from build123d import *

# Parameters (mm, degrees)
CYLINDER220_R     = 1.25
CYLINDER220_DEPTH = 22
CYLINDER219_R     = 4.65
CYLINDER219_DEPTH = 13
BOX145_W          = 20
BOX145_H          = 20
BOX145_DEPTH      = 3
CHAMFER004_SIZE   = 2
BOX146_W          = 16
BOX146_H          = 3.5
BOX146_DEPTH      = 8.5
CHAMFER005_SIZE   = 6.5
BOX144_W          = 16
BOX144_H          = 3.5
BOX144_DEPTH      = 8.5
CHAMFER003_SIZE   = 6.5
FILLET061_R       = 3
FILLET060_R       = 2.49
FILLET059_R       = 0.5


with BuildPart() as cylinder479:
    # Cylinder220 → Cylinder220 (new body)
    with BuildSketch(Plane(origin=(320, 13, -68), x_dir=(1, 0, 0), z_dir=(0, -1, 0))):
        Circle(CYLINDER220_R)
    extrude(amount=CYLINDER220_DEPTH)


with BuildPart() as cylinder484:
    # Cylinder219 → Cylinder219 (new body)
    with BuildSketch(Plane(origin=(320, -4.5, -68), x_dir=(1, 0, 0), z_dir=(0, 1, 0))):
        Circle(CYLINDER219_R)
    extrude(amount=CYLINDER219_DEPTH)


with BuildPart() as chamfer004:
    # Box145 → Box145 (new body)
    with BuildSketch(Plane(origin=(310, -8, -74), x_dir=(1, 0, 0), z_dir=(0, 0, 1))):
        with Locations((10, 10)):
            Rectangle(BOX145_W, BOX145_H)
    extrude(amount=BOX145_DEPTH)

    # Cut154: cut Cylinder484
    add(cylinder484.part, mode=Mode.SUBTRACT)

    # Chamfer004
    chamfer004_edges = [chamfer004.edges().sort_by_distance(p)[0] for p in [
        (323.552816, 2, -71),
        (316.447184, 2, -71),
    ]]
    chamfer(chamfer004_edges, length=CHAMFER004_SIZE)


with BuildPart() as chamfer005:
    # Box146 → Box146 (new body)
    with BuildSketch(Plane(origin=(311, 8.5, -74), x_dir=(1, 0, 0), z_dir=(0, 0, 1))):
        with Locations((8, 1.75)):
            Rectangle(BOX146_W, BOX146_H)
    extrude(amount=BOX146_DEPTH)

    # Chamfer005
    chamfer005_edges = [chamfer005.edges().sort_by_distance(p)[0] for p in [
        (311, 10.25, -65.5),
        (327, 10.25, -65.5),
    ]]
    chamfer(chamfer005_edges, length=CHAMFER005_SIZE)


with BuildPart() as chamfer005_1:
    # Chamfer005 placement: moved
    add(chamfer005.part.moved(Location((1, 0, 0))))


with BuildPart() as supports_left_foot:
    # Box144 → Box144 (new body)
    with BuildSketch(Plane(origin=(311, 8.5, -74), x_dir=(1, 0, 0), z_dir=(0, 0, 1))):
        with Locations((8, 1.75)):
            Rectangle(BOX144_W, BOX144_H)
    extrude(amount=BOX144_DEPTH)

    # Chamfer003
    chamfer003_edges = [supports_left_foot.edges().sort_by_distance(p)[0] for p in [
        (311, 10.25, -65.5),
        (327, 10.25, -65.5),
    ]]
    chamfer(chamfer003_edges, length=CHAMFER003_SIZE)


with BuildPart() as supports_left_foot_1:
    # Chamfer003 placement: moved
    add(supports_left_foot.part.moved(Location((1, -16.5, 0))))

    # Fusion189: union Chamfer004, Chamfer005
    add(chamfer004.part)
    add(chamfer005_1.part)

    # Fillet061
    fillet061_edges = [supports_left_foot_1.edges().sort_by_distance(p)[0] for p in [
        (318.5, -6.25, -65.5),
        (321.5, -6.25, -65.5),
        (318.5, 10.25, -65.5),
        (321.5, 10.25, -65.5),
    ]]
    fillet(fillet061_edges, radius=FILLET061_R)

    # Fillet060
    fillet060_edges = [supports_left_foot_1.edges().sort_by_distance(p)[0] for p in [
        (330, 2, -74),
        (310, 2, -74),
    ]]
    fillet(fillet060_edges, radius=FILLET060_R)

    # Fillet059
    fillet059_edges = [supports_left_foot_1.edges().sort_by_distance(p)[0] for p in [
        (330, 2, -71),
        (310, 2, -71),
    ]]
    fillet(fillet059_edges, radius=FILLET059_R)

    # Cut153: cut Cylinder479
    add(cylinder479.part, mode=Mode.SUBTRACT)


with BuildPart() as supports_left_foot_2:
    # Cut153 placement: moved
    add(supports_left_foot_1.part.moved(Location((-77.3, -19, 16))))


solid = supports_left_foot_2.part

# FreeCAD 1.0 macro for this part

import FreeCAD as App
import Part
import Sketcher

V = App.Vector
Q = App.Units.Quantity


def edges_at(feature, points):
    """Names of the edges that pass closest to the given points."""
    edges = feature.Shape.Edges
    near = lambda p: min(range(len(edges)), key=lambda i: edges[i].distToShape(Part.Vertex(*p))[0])
    return sorted({f"Edge{near(p) + 1}" for p in points})

doc = App.newDocument("Part")
body = doc.addObject("PartDesign::Body", "Body")

# Sketch on XZ plane
sketch1 = body.newObject("Sketcher::SketchObject", "Sketch")
sketch1.AttachmentSupport = (doc.getObject("XZ_Plane"), [""])
sketch1.MapMode = "FlatFace"
sketch1.AttachmentOffset = App.Placement(V(0, 0, -13), App.Rotation())
sketch1.addGeometry(Part.Circle(V(320, -68, 0), V(0, 0, 1), 1.25), False)
sketch1.addConstraint([
    Sketcher.Constraint("Diameter", 0, Q("2.5 mm")),
    Sketcher.Constraint("DistanceX", -1, 1, 0, 3, Q("320 mm")),
    Sketcher.Constraint("DistanceY", 0, 3, -1, 1, Q("68 mm")),
])
pad1 = body.newObject("PartDesign::Pad", "Pad")
pad1.Profile = sketch1
pad1.Length = 22
body2 = doc.addObject("PartDesign::Body", "Body001")

# Sketch on XZ plane
sketch2 = body2.newObject("Sketcher::SketchObject", "Sketch001")
sketch2.AttachmentSupport = (doc.getObject("XZ_Plane001"), [""])
sketch2.MapMode = "FlatFace"
sketch2.AttachmentOffset = App.Placement(V(0, 0, 4.5), App.Rotation())
sketch2.addGeometry(Part.Circle(V(320, -68, 0), V(0, 0, 1), 4.65), False)
sketch2.addConstraint([
    Sketcher.Constraint("Diameter", 0, Q("9.3 mm")),
    Sketcher.Constraint("DistanceX", -1, 1, 0, 3, Q("320 mm")),
    Sketcher.Constraint("DistanceY", 0, 3, -1, 1, Q("68 mm")),
])
pad2 = body2.newObject("PartDesign::Pad", "Pad001")
pad2.Profile = sketch2
pad2.Length = 13
pad2.Reversed = True
body3 = doc.addObject("PartDesign::Body", "Body002")

# Sketch on XY plane
sketch3 = body3.newObject("Sketcher::SketchObject", "Sketch002")
sketch3.AttachmentSupport = (doc.getObject("XY_Plane002"), [""])
sketch3.MapMode = "FlatFace"
sketch3.AttachmentOffset = App.Placement(V(0, 0, -74), App.Rotation())
sketch3.addGeometry([
    Part.LineSegment(V(310, 12, 0), V(310, -8, 0)),
    Part.LineSegment(V(310, -8, 0), V(330, -8, 0)),
    Part.LineSegment(V(330, -8, 0), V(330, 12, 0)),
    Part.LineSegment(V(330, 12, 0), V(310, 12, 0)),
], False)
sketch3.addConstraint([
    Sketcher.Constraint("Coincident", 0, 2, 1, 1),
    Sketcher.Constraint("Coincident", 1, 2, 2, 1),
    Sketcher.Constraint("Coincident", 2, 2, 3, 1),
    Sketcher.Constraint("Coincident", 3, 2, 0, 1),
    Sketcher.Constraint("Vertical", 0),
    Sketcher.Constraint("Horizontal", 1),
    Sketcher.Constraint("Vertical", 2),
    Sketcher.Constraint("Horizontal", 3),
    Sketcher.Constraint("Equal", 3, 0),
    Sketcher.Constraint("DistanceX", 1, 1, 1, 2, Q("20 mm")),
    Sketcher.Constraint("DistanceX", -1, 1, 0, 2, Q("310 mm")),
    Sketcher.Constraint("DistanceY", 0, 2, -1, 1, Q("8 mm")),
])
pad3 = body3.newObject("PartDesign::Pad", "Pad002")
pad3.Profile = sketch3
pad3.Length = 3
doc.recompute()

boolean = body3.newObject("PartDesign::Boolean", "Boolean")
boolean.Type = "Cut"
boolean.addObjects([body2])
doc.recompute()

chamfer = body3.newObject("PartDesign::Chamfer", "Chamfer")
chamfer.Base = (boolean, edges_at(boolean, [(323.553, 2, -71), (316.447, 2, -71)]))
chamfer.Size = 2
body4 = doc.addObject("PartDesign::Body", "Body003")

# Sketch on XY plane
sketch4 = body4.newObject("Sketcher::SketchObject", "Sketch003")
sketch4.AttachmentSupport = (doc.getObject("XY_Plane003"), [""])
sketch4.MapMode = "FlatFace"
sketch4.AttachmentOffset = App.Placement(V(0, 0, -74), App.Rotation())
sketch4.addGeometry([
    Part.LineSegment(V(311, 12, 0), V(311, 8.5, 0)),
    Part.LineSegment(V(311, 8.5, 0), V(327, 8.5, 0)),
    Part.LineSegment(V(327, 8.5, 0), V(327, 12, 0)),
    Part.LineSegment(V(327, 12, 0), V(311, 12, 0)),
], False)
sketch4.addConstraint([
    Sketcher.Constraint("Coincident", 0, 2, 1, 1),
    Sketcher.Constraint("Coincident", 1, 2, 2, 1),
    Sketcher.Constraint("Coincident", 2, 2, 3, 1),
    Sketcher.Constraint("Coincident", 3, 2, 0, 1),
    Sketcher.Constraint("Vertical", 0),
    Sketcher.Constraint("Horizontal", 1),
    Sketcher.Constraint("Vertical", 2),
    Sketcher.Constraint("Horizontal", 3),
    Sketcher.Constraint("DistanceX", 1, 1, 1, 2, Q("16 mm")),
    Sketcher.Constraint("DistanceY", 0, 2, 0, 1, Q("3.5 mm")),
    Sketcher.Constraint("DistanceX", -1, 1, 0, 2, Q("311 mm")),
    Sketcher.Constraint("DistanceY", -1, 1, 2, 2, Q("12 mm")),
])
pad4 = body4.newObject("PartDesign::Pad", "Pad003")
pad4.Profile = sketch4
pad4.Length = 8.5
doc.recompute()

chamfer2 = body4.newObject("PartDesign::Chamfer", "Chamfer001")
chamfer2.Base = (pad4, edges_at(pad4, [(311, 10.25, -65.5), (327, 10.25, -65.5)]))
chamfer2.Size = 6.5
body5 = doc.addObject("PartDesign::Body", "Body004")
doc.recompute()

body4.Placement = App.Placement(V(1, 0, 0), App.Rotation(V(0, 0, 1), 0))
boolean2 = body5.newObject("PartDesign::Boolean", "Boolean001")
boolean2.Type = "Fuse"
boolean2.addObjects([body4])
body6 = doc.addObject("PartDesign::Body", "Body005")

# Sketch on XY plane
sketch5 = body6.newObject("Sketcher::SketchObject", "Sketch004")
sketch5.AttachmentSupport = (doc.getObject("XY_Plane005"), [""])
sketch5.MapMode = "FlatFace"
sketch5.AttachmentOffset = App.Placement(V(0, 0, -74), App.Rotation())
sketch5.addGeometry([
    Part.LineSegment(V(311, 12, 0), V(311, 8.5, 0)),
    Part.LineSegment(V(311, 8.5, 0), V(327, 8.5, 0)),
    Part.LineSegment(V(327, 8.5, 0), V(327, 12, 0)),
    Part.LineSegment(V(327, 12, 0), V(311, 12, 0)),
], False)
sketch5.addConstraint([
    Sketcher.Constraint("Coincident", 0, 2, 1, 1),
    Sketcher.Constraint("Coincident", 1, 2, 2, 1),
    Sketcher.Constraint("Coincident", 2, 2, 3, 1),
    Sketcher.Constraint("Coincident", 3, 2, 0, 1),
    Sketcher.Constraint("Vertical", 0),
    Sketcher.Constraint("Horizontal", 1),
    Sketcher.Constraint("Vertical", 2),
    Sketcher.Constraint("Horizontal", 3),
    Sketcher.Constraint("DistanceX", 1, 1, 1, 2, Q("16 mm")),
    Sketcher.Constraint("DistanceY", 0, 2, 0, 1, Q("3.5 mm")),
    Sketcher.Constraint("DistanceX", -1, 1, 0, 2, Q("311 mm")),
    Sketcher.Constraint("DistanceY", -1, 1, 2, 2, Q("12 mm")),
])
pad5 = body6.newObject("PartDesign::Pad", "Pad004")
pad5.Profile = sketch5
pad5.Length = 8.5
doc.recompute()

chamfer3 = body6.newObject("PartDesign::Chamfer", "Chamfer002")
chamfer3.Base = (pad5, edges_at(pad5, [(311, 10.25, -65.5), (327, 10.25, -65.5)]))
chamfer3.Size = 6.5
body7 = doc.addObject("PartDesign::Body", "Body006")
doc.recompute()

body6.Placement = App.Placement(V(1, -16.5, 0), App.Rotation(V(0, 0, 1), 0))
boolean3 = body7.newObject("PartDesign::Boolean", "Boolean002")
boolean3.Type = "Fuse"
boolean3.addObjects([body6])
doc.recompute()

boolean4 = body7.newObject("PartDesign::Boolean", "Boolean003")
boolean4.Type = "Fuse"
boolean4.addObjects([body3])
doc.recompute()

boolean5 = body7.newObject("PartDesign::Boolean", "Boolean004")
boolean5.Type = "Fuse"
boolean5.addObjects([body5])
doc.recompute()

fillet = body7.newObject("PartDesign::Fillet", "Fillet")
fillet.Base = (boolean5, edges_at(boolean5, [
    (318.5, -6.25, -65.5),
    (321.5, -6.25, -65.5),
    (318.5, 10.25, -65.5),
    (321.5, 10.25, -65.5),
]))
fillet.Radius = 3
doc.recompute()

fillet2 = body7.newObject("PartDesign::Fillet", "Fillet001")
fillet2.Base = (fillet, edges_at(fillet, [(330, 2, -74), (310, 2, -74)]))
fillet2.Radius = 2.49
doc.recompute()

fillet3 = body7.newObject("PartDesign::Fillet", "Fillet002")
fillet3.Base = (fillet2, edges_at(fillet2, [(330, 2, -71), (310, 2, -71)]))
fillet3.Radius = 0.5
doc.recompute()

boolean6 = body7.newObject("PartDesign::Boolean", "Boolean005")
boolean6.Type = "Cut"
boolean6.addObjects([body])
body8 = doc.addObject("PartDesign::Body", "Body007")
doc.recompute()

body7.Placement = App.Placement(V(-77.3, -19, 16), App.Rotation(V(0, 0, 1), 0))
boolean7 = body8.newObject("PartDesign::Boolean", "Boolean006")
boolean7.Type = "Fuse"
boolean7.addObjects([body7])

doc.recompute()
